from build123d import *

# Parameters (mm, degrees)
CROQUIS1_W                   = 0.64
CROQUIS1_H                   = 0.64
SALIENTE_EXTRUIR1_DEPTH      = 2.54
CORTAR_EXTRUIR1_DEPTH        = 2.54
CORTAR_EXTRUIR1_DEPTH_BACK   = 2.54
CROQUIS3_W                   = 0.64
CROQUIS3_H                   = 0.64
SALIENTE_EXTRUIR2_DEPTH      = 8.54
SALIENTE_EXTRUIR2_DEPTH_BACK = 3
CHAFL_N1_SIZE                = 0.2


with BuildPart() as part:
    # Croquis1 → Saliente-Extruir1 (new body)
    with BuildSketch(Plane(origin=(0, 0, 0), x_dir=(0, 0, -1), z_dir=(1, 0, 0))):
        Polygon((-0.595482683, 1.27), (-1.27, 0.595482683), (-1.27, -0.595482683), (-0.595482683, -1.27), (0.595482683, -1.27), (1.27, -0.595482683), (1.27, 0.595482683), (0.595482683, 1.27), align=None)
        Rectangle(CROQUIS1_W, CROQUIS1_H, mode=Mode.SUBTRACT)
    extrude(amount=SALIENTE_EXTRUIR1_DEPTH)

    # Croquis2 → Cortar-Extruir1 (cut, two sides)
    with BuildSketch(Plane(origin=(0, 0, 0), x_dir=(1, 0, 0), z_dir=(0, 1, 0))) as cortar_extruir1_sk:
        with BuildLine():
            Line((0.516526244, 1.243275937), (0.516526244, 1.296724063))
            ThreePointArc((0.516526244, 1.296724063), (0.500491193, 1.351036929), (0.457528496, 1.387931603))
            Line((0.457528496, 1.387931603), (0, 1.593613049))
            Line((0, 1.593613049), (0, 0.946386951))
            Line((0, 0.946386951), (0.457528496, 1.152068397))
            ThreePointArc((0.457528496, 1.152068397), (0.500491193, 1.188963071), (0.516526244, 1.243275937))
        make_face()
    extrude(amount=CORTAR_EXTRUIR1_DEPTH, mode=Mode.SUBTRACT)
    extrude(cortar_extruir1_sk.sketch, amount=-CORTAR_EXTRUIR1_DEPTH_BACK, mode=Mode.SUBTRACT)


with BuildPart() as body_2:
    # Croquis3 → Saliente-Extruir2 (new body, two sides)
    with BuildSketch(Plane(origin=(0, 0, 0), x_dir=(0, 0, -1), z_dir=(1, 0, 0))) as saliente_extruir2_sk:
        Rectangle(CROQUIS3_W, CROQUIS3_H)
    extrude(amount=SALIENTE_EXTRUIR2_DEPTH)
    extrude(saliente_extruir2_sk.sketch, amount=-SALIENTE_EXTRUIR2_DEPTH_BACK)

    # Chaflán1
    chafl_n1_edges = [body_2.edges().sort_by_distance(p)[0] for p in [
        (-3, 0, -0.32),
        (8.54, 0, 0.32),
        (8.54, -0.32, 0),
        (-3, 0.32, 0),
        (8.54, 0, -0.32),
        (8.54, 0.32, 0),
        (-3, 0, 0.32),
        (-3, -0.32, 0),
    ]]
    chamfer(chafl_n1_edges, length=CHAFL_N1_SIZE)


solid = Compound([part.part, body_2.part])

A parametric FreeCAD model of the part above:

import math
import FreeCAD as App
import Part
import Sketcher

V = App.Vector


def edges_at(feature, points):
    """Names of the edges that pass closest to the given points."""
    edges = feature.Shape.Edges
    near = lambda p: min(range(len(edges)), key=lambda i: edges[i].distToShape(Part.Vertex(*p))[0])
    return sorted({f"Edge{near(p) + 1}" for p in points})


def add_polygon(sketch, points):
    """Adds a closed chain of lines whose ends are joined by coincident constraints."""
    first, n = sketch.GeometryCount, len(points)
    for a, b in zip(points, points[1:] + points[:1]):
        sketch.addGeometry(Part.LineSegment(App.Vector(*a, 0), App.Vector(*b, 0)), False)
    for i in range(n):
        sketch.addConstraint(Sketcher.Constraint("Coincident", first + i, 2, first + (i + 1) % n, 1))

doc = App.newDocument("Part")
body = doc.addObject("PartDesign::Body", "Body")

# Sketch on YZ plane
sketch1 = doc.addObject("Sketcher::SketchObject", "Sketch")
body.addObject(sketch1)
sketch1.AttachmentSupport = (doc.YZ_Plane, [""])
sketch1.MapMode = "FlatFace"
add_polygon(sketch1, [(1.3, 0.6), (0.6, 1.3), (-0.6, 1.3), (-1.3, 0.6), (-1.3, -0.6), (-0.6, -1.3), (0.6, -1.3), (1.3, -0.6)])  # lines 0-7
add_polygon(sketch1, [(-0.3, -0.3), (-0.3, 0.3), (0.3, 0.3), (0.3, -0.3)])  # lines 8-11
sketch1.addConstraint([
    Sketcher.Constraint("Horizontal", 1),
    Sketcher.Constraint("Vertical", 3),
    Sketcher.Constraint("Horizontal", 5),
    Sketcher.Constraint("Vertical", 7),
    Sketcher.Constraint("Vertical", 8),
    Sketcher.Constraint("Horizontal", 9),
    Sketcher.Constraint("Vertical", 10),
    Sketcher.Constraint("Horizontal", 11),
    Sketcher.Constraint("Symmetric", 0, 2, 4, 2, -1, 1),
    Sketcher.Constraint("Symmetric", 2, 2, 6, 2, -1, 1),
    Sketcher.Constraint("Symmetric", 8, 2, 10, 2, -1, 1),
    Sketcher.Constraint("Perpendicular", 0, 2),
    Sketcher.Constraint("Perpendicular", 2, 4),
    Sketcher.Constraint("Perpendicular", 4, 6),
    Sketcher.Constraint("Horizontal", 3, 2, 6, 2),
    Sketcher.Constraint("Vertical", 1, 2, 4, 2),
    Sketcher.Constraint("Equal", 5, 3),
    Sketcher.Constraint("Equal", 11, 8),
    Sketcher.Constraint("DistanceX", 9, 1, 9, 2, 0.64),
    Sketcher.Constraint("DistanceY", -1, 1, 0, 2, 1.27),
    Sketcher.Constraint("Distance", 0, 0.953912),
])
pad1 = doc.addObject("PartDesign::Pad", "Pad")
body.addObject(pad1)
pad1.Profile = sketch1
pad1.Length = 2.54

# Sketch on XZ plane
sketch2 = doc.addObject("Sketcher::SketchObject", "Sketch001")
body.addObject(sketch2)
sketch2.AttachmentSupport = (doc.XZ_Plane, [""])
sketch2.MapMode = "FlatFace"
sketch2.addGeometry([
    Part.LineSegment(V(0.52, -1.24, 0), V(0.52, -1.3, 0)),  # 0
    Part.ArcOfCircle(Part.Circle(V(0.42, -1.3, 0), V(0, 0, 1), 0.1), math.radians(-66), math.radians(0)),  # 1
    Part.LineSegment(V(0.46, -1.39, 0), V(0, -1.59, 0)),  # 2
    Part.LineSegment(V(0, -1.59, 0), V(0, -0.95, 0)),  # 3
    Part.LineSegment(V(0, -0.95, 0), V(0.46, -1.15, 0)),  # 4
    Part.ArcOfCircle(Part.Circle(V(0.42, -1.24, 0), V(0, 0, 1), 0.1), math.radians(0), math.radians(66)),  # 5
], False)
sketch2.addConstraint([
    Sketcher.Constraint("Tangent", 0, 2, 1, 2),
    Sketcher.Constraint("Tangent", 1, 1, 2, 1),
    Sketcher.Constraint("Coincident", 2, 2, 3, 1),
    Sketcher.Constraint("Coincident", 3, 2, 4, 1),
    Sketcher.Constraint("Tangent", 4, 2, 5, 2),
    Sketcher.Constraint("Tangent", 5, 1, 0, 1),
    Sketcher.Constraint("Vertical", 0),
    Sketcher.Constraint("Vertical", 3),
    Sketcher.Constraint("Equal", 1, 5),
    Sketcher.Constraint("PointOnObject", 2, 2, -2),
    Sketcher.Constraint("Vertical", 1, 1, 4, 2),
    Sketcher.Constraint("Radius", 1, 0.1),
    Sketcher.Constraint("DistanceY", 0, 2, 0, 1, 0.053448),
    Sketcher.Constraint("DistanceY", 3, 1, 3, 2, 0.647226),
    Sketcher.Constraint("DistanceX", -1, 1, 1, 1, 0.457528),
    Sketcher.Constraint("DistanceY", 1, 1, -1, 1, 1.387932),
])
pocket1 = doc.addObject("PartDesign::Pocket", "Pocket")
body.addObject(pocket1)
pocket1.Profile = sketch2
pocket1.Type = "ThroughAll"
pocket1.Midplane = True
body2 = doc.addObject("PartDesign::Body", "Body001")

# Sketch on YZ plane
sketch3 = doc.addObject("Sketcher::SketchObject", "Sketch002")
body2.addObject(sketch3)
sketch3.AttachmentSupport = (doc.getObject("YZ_Plane001"), [""])
sketch3.MapMode = "FlatFace"
add_polygon(sketch3, [(0.3, 0.3), (-0.3, 0.3), (-0.3, -0.3), (0.3, -0.3)])  # lines 0-3
sketch3.addConstraint([
    Sketcher.Constraint("Horizontal", 0),
    Sketcher.Constraint("Vertical", 1),
    Sketcher.Constraint("Horizontal", 2),
    Sketcher.Constraint("Vertical", 3),
    Sketcher.Constraint("Symmetric", 0, 2, 2, 2, -1, 1),
    Sketcher.Constraint("Equal", 2, 1),
    Sketcher.Constraint("DistanceX", 0, 2, 0, 1, 0.64),
])
pad2 = doc.addObject("PartDesign::Pad", "Pad001")
body2.addObject(pad2)
pad2.Profile = sketch3
pad2.Type = "TwoLengths"
pad2.Length = 8.54
pad2.Length2 = 3
doc.recompute()

chamfer = doc.addObject("PartDesign::Chamfer", "Chamfer")
body2.addObject(chamfer)
chamfer.Base = (pad2, edges_at(pad2, [
    (-3, 0, -0.32),
    (8.54, 0, 0.32),
    (8.54, -0.32, 0),
    (-3, 0.32, 0),
    (8.54, 0, -0.32),
    (8.54, 0.32, 0),
    (-3, 0, 0.32),
    (-3, -0.32, 0),
]))
chamfer.Size = 0.2

doc.recompute()
